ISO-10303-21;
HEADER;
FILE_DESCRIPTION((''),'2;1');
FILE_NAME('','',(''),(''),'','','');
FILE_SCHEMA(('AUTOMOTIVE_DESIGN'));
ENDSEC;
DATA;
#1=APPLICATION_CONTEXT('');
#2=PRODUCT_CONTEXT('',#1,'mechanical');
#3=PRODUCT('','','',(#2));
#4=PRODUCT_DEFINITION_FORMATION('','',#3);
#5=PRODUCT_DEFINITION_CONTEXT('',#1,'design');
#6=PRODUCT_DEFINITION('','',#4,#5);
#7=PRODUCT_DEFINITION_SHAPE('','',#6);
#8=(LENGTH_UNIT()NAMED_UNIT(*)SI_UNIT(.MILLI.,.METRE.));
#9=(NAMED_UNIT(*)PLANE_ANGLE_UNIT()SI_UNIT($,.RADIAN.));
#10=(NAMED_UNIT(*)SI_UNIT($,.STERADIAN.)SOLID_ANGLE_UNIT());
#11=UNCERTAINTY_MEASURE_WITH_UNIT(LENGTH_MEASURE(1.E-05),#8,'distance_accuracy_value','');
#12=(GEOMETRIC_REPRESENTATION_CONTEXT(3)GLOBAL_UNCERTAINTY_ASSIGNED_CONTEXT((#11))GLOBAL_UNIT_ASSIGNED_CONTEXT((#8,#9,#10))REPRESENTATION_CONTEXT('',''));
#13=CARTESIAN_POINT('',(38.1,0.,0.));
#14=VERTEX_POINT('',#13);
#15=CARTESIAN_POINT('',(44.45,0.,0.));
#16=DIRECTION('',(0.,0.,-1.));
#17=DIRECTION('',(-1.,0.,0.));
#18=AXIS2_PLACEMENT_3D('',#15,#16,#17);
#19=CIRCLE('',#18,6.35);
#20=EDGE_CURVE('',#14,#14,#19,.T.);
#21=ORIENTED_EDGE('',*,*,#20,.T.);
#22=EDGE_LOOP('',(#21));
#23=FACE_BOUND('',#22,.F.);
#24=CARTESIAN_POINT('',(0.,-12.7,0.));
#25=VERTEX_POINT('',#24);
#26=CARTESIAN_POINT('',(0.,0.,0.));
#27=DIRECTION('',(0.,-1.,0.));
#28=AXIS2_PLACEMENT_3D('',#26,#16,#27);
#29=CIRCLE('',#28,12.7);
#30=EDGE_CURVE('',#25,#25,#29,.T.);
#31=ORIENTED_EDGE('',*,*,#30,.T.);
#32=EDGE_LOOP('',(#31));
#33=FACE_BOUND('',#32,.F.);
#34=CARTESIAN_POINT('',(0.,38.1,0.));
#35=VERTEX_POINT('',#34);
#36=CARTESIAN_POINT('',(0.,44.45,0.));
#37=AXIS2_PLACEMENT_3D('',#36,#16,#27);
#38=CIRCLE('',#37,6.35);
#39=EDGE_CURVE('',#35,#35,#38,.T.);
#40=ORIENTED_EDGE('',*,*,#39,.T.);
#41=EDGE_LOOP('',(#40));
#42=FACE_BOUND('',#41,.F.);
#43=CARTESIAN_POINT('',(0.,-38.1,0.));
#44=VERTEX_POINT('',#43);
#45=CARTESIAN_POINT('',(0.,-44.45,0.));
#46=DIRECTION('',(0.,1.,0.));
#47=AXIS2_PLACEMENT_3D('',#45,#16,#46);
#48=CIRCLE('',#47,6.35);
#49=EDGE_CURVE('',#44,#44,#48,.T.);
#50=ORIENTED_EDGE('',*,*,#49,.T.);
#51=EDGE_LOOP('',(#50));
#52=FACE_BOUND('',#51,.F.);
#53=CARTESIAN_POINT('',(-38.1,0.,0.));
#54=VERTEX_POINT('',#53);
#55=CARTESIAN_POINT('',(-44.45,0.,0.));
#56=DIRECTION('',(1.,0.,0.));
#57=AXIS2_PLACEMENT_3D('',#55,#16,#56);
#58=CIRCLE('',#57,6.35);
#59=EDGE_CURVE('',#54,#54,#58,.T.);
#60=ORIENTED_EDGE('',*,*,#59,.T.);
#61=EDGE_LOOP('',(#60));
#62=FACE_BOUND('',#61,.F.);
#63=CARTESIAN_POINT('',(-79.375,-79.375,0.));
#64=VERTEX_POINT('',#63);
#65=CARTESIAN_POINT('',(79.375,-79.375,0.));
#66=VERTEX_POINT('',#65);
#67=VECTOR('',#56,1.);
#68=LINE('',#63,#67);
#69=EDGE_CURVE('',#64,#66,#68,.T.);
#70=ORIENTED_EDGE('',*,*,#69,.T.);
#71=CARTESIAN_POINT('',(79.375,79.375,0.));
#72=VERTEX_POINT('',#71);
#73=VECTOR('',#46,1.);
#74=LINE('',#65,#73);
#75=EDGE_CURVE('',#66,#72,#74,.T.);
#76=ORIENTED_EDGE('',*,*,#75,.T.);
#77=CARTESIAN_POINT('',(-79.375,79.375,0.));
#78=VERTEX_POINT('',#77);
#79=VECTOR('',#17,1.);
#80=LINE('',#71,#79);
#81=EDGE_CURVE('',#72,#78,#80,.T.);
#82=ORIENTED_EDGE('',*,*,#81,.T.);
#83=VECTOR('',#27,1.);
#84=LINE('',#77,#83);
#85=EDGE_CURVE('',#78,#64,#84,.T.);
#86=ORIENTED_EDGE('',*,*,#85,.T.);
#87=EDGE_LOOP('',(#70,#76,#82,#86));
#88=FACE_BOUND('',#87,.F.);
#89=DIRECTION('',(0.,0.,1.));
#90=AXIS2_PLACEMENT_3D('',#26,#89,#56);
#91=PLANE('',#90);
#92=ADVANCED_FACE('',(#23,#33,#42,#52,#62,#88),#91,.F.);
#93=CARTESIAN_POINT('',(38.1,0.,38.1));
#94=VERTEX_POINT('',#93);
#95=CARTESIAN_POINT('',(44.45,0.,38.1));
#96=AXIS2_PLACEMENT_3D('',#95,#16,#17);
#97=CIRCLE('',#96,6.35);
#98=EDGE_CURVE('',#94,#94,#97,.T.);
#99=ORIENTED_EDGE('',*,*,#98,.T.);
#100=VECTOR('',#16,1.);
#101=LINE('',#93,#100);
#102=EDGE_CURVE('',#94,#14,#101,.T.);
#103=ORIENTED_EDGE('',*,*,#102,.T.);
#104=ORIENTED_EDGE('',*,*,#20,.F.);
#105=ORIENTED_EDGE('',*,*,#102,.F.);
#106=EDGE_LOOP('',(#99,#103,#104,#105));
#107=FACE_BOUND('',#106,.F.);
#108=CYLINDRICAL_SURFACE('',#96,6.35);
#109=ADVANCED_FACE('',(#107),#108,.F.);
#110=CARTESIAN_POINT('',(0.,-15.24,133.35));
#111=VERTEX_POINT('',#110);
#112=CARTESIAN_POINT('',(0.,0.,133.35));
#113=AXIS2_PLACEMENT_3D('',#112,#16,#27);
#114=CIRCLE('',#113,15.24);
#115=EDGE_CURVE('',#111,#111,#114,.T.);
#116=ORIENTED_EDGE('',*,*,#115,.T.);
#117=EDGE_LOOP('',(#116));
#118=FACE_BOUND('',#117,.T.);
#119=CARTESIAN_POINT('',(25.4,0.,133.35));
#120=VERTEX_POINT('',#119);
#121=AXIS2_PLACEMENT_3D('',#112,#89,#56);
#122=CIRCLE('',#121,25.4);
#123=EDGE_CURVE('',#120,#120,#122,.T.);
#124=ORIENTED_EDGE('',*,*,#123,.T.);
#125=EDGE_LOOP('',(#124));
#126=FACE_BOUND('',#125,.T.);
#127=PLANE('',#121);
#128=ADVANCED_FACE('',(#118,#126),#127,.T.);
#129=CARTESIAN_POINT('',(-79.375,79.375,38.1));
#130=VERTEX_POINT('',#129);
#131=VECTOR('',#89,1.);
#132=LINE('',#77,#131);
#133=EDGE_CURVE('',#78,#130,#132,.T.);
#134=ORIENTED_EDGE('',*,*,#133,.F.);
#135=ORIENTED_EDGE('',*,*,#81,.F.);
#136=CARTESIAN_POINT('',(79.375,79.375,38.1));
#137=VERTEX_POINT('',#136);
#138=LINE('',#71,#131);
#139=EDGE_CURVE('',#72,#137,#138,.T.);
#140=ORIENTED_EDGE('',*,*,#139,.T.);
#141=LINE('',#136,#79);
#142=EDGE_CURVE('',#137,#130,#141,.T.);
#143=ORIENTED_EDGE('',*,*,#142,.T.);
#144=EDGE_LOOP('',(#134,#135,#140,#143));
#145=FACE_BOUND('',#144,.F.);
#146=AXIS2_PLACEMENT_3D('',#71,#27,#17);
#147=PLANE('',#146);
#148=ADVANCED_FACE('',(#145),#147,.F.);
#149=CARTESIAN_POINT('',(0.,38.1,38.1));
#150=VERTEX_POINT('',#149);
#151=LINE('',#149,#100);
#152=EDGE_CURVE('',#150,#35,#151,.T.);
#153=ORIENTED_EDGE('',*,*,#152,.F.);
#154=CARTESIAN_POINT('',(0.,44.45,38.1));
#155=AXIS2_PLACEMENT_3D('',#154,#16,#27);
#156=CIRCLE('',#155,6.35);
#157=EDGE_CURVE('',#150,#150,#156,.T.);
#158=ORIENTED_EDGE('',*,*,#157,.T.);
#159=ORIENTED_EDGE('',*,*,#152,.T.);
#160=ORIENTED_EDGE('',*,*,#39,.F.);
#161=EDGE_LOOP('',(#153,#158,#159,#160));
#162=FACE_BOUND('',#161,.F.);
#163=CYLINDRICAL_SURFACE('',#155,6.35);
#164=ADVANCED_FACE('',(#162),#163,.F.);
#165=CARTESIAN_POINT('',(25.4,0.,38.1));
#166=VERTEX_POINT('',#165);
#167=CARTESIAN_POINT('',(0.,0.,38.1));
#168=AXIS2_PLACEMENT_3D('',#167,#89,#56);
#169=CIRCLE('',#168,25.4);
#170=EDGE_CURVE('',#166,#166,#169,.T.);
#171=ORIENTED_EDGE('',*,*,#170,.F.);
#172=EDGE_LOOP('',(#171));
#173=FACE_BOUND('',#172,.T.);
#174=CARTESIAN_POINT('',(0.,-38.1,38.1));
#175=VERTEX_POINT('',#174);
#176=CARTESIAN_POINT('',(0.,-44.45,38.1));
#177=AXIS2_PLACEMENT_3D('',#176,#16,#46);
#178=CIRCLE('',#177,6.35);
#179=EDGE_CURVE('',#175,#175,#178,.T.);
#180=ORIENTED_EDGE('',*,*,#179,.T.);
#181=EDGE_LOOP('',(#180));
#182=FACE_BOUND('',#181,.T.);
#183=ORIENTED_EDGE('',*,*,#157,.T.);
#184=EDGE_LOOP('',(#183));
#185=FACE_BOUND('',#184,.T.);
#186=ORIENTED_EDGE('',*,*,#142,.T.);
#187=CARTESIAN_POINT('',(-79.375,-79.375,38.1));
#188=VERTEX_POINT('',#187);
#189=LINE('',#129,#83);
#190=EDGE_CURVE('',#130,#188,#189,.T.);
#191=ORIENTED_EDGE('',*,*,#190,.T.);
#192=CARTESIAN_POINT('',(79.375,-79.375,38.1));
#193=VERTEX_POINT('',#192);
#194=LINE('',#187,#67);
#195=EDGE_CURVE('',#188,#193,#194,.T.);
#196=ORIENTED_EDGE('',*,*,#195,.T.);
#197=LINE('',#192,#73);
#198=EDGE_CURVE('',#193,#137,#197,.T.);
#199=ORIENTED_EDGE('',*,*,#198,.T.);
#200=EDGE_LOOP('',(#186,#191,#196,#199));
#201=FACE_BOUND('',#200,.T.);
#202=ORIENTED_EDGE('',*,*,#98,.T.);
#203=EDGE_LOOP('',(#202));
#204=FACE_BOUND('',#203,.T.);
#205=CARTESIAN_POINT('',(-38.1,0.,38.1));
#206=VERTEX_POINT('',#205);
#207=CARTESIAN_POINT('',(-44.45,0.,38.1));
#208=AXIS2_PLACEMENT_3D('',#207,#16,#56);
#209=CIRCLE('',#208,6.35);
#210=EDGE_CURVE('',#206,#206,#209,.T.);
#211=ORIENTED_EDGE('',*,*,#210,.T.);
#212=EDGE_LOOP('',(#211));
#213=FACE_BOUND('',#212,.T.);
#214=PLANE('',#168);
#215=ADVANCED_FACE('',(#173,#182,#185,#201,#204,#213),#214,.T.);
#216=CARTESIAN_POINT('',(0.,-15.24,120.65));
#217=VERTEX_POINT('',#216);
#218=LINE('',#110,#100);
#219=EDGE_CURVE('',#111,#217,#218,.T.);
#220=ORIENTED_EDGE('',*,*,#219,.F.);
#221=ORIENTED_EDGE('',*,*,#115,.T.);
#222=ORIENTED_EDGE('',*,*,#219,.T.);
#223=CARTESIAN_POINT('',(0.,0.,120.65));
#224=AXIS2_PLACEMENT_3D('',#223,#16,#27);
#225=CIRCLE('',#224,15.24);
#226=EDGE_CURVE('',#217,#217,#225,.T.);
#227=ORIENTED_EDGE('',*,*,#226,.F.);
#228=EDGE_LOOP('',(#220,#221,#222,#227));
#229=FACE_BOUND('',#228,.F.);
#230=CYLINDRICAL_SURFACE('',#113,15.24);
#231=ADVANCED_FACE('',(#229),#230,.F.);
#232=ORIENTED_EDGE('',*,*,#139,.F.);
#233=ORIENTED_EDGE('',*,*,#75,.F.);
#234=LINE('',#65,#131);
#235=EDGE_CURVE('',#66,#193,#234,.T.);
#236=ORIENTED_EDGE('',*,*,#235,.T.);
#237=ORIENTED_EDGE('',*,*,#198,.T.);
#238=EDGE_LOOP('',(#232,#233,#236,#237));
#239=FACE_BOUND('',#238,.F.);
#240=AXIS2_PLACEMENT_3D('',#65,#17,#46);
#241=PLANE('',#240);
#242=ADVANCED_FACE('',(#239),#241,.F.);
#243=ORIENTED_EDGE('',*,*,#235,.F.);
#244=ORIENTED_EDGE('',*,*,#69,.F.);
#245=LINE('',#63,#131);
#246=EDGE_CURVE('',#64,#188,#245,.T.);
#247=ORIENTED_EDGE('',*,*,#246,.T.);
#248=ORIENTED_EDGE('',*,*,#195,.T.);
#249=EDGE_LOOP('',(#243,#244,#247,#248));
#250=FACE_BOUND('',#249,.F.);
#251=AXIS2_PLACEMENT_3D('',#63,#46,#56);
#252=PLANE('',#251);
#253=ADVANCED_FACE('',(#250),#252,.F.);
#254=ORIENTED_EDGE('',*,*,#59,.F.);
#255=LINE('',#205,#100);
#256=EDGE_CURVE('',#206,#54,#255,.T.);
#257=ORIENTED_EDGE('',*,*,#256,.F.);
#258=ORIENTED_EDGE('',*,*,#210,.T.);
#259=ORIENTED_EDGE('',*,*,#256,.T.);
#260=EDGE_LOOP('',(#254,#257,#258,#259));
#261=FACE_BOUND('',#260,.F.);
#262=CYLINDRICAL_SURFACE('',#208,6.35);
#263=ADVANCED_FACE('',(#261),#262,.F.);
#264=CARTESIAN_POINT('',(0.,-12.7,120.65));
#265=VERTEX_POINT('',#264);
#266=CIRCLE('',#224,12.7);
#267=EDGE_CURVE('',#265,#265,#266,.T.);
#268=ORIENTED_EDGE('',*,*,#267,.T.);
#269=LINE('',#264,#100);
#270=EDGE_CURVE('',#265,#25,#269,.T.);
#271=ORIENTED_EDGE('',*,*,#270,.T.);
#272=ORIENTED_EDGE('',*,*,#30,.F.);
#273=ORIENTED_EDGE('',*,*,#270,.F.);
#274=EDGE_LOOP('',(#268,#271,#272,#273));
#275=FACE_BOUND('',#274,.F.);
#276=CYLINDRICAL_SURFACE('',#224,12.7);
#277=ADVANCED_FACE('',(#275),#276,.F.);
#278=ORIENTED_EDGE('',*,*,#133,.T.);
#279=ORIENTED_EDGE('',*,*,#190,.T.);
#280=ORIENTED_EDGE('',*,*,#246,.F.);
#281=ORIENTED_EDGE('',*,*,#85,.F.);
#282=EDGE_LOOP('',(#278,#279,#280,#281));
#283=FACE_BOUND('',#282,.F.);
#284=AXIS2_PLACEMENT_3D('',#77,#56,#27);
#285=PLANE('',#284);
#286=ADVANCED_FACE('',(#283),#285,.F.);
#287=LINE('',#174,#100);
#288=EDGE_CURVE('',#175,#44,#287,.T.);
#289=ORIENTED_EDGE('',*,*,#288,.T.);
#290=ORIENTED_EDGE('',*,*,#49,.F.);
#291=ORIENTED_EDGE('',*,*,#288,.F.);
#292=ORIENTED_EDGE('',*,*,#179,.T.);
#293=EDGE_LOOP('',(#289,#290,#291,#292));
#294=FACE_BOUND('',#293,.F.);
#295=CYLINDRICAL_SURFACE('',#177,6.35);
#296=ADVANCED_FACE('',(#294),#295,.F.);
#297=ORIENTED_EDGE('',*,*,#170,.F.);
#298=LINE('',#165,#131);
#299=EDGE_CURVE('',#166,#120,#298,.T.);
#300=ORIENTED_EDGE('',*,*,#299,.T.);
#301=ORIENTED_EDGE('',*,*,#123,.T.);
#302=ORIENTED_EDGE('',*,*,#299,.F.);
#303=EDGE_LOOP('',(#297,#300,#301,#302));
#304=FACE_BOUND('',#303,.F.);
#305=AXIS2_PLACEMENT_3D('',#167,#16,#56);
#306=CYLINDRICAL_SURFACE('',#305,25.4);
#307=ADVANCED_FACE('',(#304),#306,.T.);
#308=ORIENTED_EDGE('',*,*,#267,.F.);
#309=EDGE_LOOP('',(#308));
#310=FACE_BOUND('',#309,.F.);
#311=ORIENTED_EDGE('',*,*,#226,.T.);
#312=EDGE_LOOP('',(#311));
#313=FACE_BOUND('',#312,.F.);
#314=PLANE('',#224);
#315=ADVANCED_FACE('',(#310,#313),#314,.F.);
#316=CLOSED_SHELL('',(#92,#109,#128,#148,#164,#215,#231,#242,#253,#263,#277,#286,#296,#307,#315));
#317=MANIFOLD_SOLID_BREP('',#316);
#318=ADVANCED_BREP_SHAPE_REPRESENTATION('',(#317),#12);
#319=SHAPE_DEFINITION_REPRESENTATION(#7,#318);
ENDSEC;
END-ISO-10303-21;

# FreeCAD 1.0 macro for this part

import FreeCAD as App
import Part
import Sketcher
from FreeCAD import Vector
Q = App.Units.Quantity


def add_polygon(sketch, points):
    """Adds a closed chain of lines whose ends are joined by coincident constraints."""
    first, n = sketch.GeometryCount, len(points)
    for a, b in zip(points, points[1:] + points[:1]):
        sketch.addGeometry(Part.LineSegment(App.Vector(*a, 0), App.Vector(*b, 0)), False)
    for i in range(n):
        sketch.addConstraint(Sketcher.Constraint("Coincident", first + i, 2, first + (i + 1) % n, 1))

doc = App.newDocument("Part")
body = doc.addObject("PartDesign::Body", "Body")

# Sketch on XY plane
sketch1 = body.newObject("Sketcher::SketchObject", "Sketch")
sketch1.AttachmentSupport = (doc.getObject("XY_Plane"), [""])
sketch1.MapMode = "FlatFace"
add_polygon(sketch1, [(79, -79), (79, 79), (-79, 79), (-79, -79)])  # lines 0-3
sketch1.addConstraint([
    Sketcher.Constraint("Vertical", 0),
    Sketcher.Constraint("Horizontal", 1),
    Sketcher.Constraint("Vertical", 2),
    Sketcher.Constraint("Horizontal", 3),
    Sketcher.Constraint("Symmetric", 0, 2, 2, 2, -1, 1),
    Sketcher.Constraint("Equal", 3, 0),
    Sketcher.Constraint("DistanceX", 1, 2, 1, 1, Q("6.25 in")),
])
pad1 = body.newObject("PartDesign::Pad", "Pad")
pad1.Profile = sketch1
pad1.Length = Q("1.5 in")

# Sketch on XY plane
sketch2 = body.newObject("Sketcher::SketchObject", "Sketch001")
sketch2.AttachmentSupport = (doc.getObject("XY_Plane"), [""])
sketch2.MapMode = "FlatFace"
sketch2.AttachmentOffset = App.Placement(Vector(0, 0, 1.5 * 25.4), App.Rotation())
sketch2.addGeometry(Part.Circle(Vector(0, 0, 0), Vector(0, 0, 1), 25), False)
sketch2.addConstraint([
    Sketcher.Constraint("Coincident", 0, 3, -1, 1),
    Sketcher.Constraint("Diameter", 0, Q("2 in")),
])
pad2 = body.newObject("PartDesign::Pad", "Pad001")
pad2.Profile = sketch2
pad2.Length = Q("3.75 in")

# Sketch on XY plane
sketch3 = body.newObject("Sketcher::SketchObject", "Sketch002")
sketch3.AttachmentSupport = (doc.getObject("XY_Plane"), [""])
sketch3.MapMode = "FlatFace"
sketch3.AttachmentOffset = App.Placement(Vector(0, 0, 5.25 * 25.4), App.Rotation())
sketch3.addGeometry(Part.Circle(Vector(0, 0, 0), Vector(0, 0, 1), 13), False)
sketch3.addConstraint([
    Sketcher.Constraint("Coincident", 0, 3, -1, 1),
    Sketcher.Constraint("Diameter", 0, Q("1 in")),
])
doc.recompute()
hole = body.newObject("PartDesign::Hole", "Hole")
hole.Profile = sketch3
hole.ThreadType = "None"
hole.Diameter = Q("1 in")
hole.DepthType = "ThroughAll"
hole.HoleCutType = "Counterbore"
hole.HoleCutDiameter = Q("1.2 in")
hole.HoleCutDepth = Q("0.5 in")

# Sketch on XY plane
sketch4 = body.newObject("Sketcher::SketchObject", "Sketch003")
sketch4.AttachmentSupport = (doc.getObject("XY_Plane"), [""])
sketch4.MapMode = "FlatFace"
sketch4.AttachmentOffset = App.Placement(Vector(0, 0, 1.5 * 25.4), App.Rotation())
sketch4.addGeometry(Part.Circle(Vector(0, 44, 0), Vector(0, 0, 1), 6), False)
sketch4.addConstraint([
    Sketcher.Constraint("PointOnObject", 0, 3, -2),
    Sketcher.Constraint("Diameter", 0, Q("0.5 in")),
    Sketcher.Constraint("DistanceY", -1, 1, 0, 3, Q("1.75 in")),
])
doc.recompute()
hole2 = body.newObject("PartDesign::Hole", "Hole001")
hole2.Profile = sketch4
hole2.ThreadType = "None"
hole2.Diameter = Q("0.5 in")
hole2.DepthType = "ThroughAll"
doc.recompute()

polarpattern = body.newObject("PartDesign::PolarPattern", "PolarPattern")
polarpattern.Originals = [hole2]
polarpattern.Axis = (doc.getObject("Z_Axis"), [""])
polarpattern.Angle = 360
polarpattern.Occurrences = 4
body.Tip = polarpattern

doc.recompute()
